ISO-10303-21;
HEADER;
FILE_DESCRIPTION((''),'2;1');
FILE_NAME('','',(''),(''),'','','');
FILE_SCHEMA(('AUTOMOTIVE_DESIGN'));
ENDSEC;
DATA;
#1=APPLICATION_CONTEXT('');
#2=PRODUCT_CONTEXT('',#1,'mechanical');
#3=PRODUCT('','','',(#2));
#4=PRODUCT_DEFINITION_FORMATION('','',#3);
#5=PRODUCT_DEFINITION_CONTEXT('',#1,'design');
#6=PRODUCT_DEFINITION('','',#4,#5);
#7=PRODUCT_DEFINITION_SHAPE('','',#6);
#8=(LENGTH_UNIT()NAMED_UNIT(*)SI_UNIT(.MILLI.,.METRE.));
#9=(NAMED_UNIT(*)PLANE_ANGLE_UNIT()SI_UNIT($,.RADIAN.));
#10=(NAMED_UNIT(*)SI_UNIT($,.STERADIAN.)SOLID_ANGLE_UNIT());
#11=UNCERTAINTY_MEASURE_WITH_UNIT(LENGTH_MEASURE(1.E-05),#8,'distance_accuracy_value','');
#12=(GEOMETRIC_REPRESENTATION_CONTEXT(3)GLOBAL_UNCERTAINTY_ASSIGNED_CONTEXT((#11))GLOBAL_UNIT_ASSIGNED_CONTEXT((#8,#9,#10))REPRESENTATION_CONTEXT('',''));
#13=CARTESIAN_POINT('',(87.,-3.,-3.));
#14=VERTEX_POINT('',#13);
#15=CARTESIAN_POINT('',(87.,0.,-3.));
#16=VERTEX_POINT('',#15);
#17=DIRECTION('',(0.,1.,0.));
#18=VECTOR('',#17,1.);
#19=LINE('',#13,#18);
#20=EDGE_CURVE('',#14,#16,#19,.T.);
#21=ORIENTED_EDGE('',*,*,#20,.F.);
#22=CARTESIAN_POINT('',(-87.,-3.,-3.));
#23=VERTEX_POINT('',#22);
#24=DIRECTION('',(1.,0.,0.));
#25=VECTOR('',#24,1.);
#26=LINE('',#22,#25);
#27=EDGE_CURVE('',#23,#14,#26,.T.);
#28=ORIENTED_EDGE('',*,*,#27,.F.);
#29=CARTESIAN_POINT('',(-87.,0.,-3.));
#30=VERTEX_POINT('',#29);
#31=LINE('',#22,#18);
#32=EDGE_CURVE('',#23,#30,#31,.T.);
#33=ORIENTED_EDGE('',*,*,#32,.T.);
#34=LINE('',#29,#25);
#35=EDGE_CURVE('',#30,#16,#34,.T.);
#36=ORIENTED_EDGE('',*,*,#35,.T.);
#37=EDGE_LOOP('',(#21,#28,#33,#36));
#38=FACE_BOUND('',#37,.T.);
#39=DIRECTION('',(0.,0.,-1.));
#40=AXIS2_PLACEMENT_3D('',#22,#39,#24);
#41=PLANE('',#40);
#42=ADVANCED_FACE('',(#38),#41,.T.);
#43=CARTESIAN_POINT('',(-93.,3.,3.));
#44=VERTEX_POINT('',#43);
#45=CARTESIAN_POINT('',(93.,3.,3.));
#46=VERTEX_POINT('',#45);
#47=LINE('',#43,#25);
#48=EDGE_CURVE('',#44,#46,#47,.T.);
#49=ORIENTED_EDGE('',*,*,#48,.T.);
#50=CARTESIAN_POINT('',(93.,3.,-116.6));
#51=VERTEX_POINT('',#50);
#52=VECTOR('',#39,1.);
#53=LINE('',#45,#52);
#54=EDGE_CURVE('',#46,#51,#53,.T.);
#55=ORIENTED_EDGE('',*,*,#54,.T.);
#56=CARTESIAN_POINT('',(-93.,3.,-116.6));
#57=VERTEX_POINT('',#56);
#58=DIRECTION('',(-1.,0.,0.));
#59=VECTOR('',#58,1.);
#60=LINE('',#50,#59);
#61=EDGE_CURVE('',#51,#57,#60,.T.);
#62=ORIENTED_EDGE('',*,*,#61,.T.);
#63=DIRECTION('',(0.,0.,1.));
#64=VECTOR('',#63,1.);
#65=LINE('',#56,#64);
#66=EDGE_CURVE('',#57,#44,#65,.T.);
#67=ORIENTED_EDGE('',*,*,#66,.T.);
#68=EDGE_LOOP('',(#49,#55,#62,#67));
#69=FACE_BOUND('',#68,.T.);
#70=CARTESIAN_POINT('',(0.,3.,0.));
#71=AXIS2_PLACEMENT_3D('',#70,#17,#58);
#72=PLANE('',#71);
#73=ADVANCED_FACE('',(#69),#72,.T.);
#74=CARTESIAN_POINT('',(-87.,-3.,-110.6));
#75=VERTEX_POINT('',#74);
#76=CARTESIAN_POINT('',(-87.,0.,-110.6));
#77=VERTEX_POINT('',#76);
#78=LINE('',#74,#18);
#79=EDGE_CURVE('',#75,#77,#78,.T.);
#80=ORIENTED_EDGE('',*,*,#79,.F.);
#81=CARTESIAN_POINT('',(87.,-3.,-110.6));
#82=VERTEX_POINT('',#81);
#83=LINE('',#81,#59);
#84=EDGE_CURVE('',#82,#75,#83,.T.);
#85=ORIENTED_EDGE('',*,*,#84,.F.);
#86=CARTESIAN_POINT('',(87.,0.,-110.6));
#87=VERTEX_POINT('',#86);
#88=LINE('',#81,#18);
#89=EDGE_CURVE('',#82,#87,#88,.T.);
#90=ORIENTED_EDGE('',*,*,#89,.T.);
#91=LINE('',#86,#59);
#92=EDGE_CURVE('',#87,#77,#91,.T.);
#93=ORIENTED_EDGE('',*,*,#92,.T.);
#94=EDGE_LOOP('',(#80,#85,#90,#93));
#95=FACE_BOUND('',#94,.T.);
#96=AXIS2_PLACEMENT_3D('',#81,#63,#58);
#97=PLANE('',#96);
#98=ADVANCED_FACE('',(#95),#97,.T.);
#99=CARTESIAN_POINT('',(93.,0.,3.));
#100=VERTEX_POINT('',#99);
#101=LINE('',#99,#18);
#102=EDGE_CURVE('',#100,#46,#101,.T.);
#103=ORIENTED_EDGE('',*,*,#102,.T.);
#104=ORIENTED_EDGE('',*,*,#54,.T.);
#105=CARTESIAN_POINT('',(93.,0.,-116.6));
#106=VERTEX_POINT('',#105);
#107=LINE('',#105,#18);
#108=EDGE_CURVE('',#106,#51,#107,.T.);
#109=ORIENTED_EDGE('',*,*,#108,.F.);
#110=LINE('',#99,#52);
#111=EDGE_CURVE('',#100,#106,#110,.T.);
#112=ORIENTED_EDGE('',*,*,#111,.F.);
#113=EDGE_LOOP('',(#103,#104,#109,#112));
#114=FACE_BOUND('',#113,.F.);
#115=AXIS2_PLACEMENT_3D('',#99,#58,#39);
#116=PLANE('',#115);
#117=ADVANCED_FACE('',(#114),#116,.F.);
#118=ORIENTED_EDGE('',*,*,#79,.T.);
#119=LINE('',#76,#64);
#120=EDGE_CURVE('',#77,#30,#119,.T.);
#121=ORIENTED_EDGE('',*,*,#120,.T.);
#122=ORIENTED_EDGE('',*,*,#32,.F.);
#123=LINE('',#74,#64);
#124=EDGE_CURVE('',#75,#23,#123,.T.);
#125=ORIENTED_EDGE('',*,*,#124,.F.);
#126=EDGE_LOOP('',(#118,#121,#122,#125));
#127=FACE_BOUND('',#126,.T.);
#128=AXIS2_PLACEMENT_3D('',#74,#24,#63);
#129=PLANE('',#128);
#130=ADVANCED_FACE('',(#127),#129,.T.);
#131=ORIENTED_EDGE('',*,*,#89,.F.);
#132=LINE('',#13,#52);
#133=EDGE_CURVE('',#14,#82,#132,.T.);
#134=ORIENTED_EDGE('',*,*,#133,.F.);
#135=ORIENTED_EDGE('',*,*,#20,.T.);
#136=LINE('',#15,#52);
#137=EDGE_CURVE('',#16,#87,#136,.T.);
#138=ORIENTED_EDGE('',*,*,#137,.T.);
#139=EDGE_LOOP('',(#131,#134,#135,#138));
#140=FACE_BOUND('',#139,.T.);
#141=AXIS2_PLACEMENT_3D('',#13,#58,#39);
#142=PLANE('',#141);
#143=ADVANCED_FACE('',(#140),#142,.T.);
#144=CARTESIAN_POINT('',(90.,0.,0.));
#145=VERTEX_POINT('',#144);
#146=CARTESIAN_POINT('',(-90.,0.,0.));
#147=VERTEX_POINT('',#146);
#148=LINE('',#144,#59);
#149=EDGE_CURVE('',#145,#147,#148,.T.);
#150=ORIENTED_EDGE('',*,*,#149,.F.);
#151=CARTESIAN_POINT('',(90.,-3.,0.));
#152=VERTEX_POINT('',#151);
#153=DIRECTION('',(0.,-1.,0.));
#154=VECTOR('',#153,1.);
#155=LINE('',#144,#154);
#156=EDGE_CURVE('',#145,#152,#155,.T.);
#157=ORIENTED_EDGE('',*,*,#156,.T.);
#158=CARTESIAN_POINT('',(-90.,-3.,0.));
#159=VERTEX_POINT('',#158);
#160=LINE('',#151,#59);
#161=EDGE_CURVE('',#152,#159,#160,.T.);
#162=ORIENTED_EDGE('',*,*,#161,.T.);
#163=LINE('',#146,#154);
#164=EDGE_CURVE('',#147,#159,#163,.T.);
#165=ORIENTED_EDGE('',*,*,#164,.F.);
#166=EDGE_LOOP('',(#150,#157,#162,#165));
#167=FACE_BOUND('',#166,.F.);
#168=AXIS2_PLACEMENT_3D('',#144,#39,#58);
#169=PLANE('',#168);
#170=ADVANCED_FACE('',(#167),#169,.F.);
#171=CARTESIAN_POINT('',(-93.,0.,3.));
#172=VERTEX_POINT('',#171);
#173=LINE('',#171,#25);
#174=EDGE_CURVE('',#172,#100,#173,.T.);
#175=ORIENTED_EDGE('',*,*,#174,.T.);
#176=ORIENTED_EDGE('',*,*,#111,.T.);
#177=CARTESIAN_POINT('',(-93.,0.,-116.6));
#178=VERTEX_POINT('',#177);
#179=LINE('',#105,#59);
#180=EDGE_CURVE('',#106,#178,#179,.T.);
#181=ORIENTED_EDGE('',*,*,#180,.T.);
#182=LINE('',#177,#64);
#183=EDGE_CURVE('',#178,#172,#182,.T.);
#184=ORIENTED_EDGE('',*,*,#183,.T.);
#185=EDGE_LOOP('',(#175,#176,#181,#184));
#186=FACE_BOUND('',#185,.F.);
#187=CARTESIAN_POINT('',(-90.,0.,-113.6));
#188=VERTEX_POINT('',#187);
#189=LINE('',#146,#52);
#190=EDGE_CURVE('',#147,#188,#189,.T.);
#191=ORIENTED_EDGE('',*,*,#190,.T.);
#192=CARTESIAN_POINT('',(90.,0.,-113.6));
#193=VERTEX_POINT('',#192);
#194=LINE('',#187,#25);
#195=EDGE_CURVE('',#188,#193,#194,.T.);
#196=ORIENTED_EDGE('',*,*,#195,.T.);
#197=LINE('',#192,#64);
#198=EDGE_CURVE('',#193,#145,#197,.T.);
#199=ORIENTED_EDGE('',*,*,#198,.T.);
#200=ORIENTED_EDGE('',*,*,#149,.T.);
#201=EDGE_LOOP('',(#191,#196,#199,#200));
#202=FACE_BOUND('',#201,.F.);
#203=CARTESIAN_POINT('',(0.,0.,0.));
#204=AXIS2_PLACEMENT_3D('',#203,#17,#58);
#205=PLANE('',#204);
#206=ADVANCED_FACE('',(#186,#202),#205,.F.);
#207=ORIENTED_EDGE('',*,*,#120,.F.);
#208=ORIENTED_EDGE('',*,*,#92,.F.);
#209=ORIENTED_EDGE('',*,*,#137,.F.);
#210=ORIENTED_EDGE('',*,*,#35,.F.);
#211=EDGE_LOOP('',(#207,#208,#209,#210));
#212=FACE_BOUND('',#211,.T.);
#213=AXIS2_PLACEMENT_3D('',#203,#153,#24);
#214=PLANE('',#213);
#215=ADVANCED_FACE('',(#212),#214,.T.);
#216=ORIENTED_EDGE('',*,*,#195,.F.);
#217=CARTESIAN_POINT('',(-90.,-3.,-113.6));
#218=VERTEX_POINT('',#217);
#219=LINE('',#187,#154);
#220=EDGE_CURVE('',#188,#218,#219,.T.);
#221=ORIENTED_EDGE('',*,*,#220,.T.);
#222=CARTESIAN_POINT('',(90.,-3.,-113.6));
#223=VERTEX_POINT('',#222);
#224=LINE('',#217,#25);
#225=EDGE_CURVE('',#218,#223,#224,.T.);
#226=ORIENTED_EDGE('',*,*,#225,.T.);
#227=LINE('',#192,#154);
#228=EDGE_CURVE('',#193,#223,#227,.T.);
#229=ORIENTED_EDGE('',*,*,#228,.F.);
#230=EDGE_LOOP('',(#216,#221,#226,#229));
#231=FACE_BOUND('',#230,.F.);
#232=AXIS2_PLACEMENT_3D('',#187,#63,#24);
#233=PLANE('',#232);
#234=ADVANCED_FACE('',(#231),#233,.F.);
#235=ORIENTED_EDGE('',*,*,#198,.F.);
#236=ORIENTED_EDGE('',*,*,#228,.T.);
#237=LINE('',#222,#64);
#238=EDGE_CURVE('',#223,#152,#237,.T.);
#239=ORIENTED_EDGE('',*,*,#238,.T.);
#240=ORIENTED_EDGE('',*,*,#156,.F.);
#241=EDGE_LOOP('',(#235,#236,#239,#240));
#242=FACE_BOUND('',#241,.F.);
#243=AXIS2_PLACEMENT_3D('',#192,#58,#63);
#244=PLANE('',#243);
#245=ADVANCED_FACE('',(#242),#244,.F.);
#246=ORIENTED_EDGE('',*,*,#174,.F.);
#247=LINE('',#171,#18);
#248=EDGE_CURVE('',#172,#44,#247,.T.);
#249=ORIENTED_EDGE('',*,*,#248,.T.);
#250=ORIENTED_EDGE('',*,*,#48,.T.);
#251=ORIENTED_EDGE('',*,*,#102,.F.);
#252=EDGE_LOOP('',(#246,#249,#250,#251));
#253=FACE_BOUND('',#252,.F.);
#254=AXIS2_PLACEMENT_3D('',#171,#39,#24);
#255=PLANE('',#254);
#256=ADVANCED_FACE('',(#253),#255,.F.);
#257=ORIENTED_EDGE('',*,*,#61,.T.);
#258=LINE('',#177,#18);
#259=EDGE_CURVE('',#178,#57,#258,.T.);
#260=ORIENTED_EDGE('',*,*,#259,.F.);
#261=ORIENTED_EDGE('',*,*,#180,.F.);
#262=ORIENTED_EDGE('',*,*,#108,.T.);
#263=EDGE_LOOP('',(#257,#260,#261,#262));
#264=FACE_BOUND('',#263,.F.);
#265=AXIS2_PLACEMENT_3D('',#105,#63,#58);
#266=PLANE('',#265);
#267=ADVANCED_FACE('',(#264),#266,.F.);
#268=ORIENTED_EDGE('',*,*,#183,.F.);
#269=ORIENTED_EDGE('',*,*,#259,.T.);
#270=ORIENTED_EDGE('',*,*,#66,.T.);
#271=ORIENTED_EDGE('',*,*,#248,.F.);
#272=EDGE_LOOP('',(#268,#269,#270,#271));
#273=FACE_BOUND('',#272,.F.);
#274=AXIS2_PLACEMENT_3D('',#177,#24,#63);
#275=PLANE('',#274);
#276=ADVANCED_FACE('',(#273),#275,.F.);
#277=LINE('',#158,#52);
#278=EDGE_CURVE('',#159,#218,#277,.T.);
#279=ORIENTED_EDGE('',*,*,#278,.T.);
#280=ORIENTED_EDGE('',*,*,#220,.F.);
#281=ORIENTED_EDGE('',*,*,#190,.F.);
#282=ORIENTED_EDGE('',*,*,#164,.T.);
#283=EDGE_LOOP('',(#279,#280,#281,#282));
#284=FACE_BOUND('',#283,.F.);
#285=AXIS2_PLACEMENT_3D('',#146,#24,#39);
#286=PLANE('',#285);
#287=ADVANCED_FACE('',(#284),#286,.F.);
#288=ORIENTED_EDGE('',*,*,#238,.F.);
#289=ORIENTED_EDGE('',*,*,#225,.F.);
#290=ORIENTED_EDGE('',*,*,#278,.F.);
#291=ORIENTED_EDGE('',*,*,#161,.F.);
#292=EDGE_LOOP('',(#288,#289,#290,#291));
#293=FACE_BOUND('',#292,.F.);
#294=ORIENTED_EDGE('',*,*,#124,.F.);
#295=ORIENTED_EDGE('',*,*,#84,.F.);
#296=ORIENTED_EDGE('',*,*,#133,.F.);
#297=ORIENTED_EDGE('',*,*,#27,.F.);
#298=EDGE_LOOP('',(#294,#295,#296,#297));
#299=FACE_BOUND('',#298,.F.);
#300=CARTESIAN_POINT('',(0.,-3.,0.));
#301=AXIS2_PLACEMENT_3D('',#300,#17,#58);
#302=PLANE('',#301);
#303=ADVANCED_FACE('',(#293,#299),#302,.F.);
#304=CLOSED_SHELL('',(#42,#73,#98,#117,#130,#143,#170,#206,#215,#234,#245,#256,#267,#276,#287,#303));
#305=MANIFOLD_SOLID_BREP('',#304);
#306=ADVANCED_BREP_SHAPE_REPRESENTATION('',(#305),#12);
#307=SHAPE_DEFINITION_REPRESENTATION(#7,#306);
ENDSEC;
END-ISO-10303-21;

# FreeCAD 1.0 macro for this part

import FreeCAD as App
import Part
import Sketcher

V = App.Vector


def add_polygon(sketch, points):
    """Adds a closed chain of lines whose ends are joined by coincident constraints."""
    first, n = sketch.GeometryCount, len(points)
    for a, b in zip(points, points[1:] + points[:1]):
        sketch.addGeometry(Part.LineSegment(App.Vector(*a, 0), App.Vector(*b, 0)), False)
    for i in range(n):
        sketch.addConstraint(Sketcher.Constraint("Coincident", first + i, 2, first + (i + 1) % n, 1))

doc = App.newDocument("Part")
body = doc.addObject("PartDesign::Body", "Body")

sketch1 = body.newObject("Sketcher::SketchObject", "Sketch")
sketch1.AttachmentSupport = (doc.getObject("XZ_Plane"), [""])
sketch1.MapMode = "FlatFace"
add_polygon(sketch1, [(93, 3), (93, -117), (-93, -117), (-93, 3)])
sketch1.addConstraint([
    Sketcher.Constraint("Vertical", 0),
    Sketcher.Constraint("Horizontal", 1),
    Sketcher.Constraint("Vertical", 2),
    Sketcher.Constraint("Horizontal", 3),
    Sketcher.Constraint("DistanceY", -1, 1, 2, 2, 3.0),
    Sketcher.Constraint("DistanceX", 1, 2, 1, 1, 186.0),
    Sketcher.Constraint("DistanceY", 0, 2, 0, 1, 119.6),
    Sketcher.Constraint("DistanceX", -1, 1, 0, 2, 93.0),
])
pad1 = body.newObject("PartDesign::Pad", "Pad")
pad1.Profile = sketch1
pad1.Length = 3
pad1.Reversed = True

sketch2 = body.newObject("Sketcher::SketchObject", "Sketch001")
sketch2.AttachmentSupport = (doc.getObject("XZ_Plane"), [""])
sketch2.MapMode = "FlatFace"
add_polygon(sketch2, [(90, -114), (-90, -114), (-90, 0), (90, 0)])
sketch2.addConstraint([
    Sketcher.Constraint("Horizontal", 0),
    Sketcher.Constraint("Vertical", 1),
    Sketcher.Constraint("Horizontal", 2),
    Sketcher.Constraint("Vertical", 3),
    Sketcher.Constraint("Symmetric", 1, 2, 2, 2, -1, 1),
    Sketcher.Constraint("DistanceX", 0, 2, 0, 1, 180.0),
    Sketcher.Constraint("DistanceY", 1, 1, 1, 2, 113.6),
])
pad2 = body.newObject("PartDesign::Pad", "Pad001")
pad2.Profile = sketch2
pad2.Length = 3

sketch3 = body.newObject("Sketcher::SketchObject", "Sketch002")
sketch3.AttachmentSupport = (doc.getObject("XZ_Plane"), [""])
sketch3.MapMode = "FlatFace"
sketch3.AttachmentOffset = App.Placement(V(0, 0, 3), App.Rotation())
add_polygon(sketch3, [(87, -3), (-87, -3), (-87, -111), (87, -111)])
sketch3.addConstraint([
    Sketcher.Constraint("Horizontal", 0),
    Sketcher.Constraint("Vertical", 1),
    Sketcher.Constraint("Horizontal", 2),
    Sketcher.Constraint("Vertical", 3),
    Sketcher.Constraint("DistanceY", 0, 2, -1, 1, 3.0),
    Sketcher.Constraint("DistanceX", 0, 2, 0, 1, 174.0),
    Sketcher.Constraint("DistanceY", 1, 2, 1, 1, 107.6),
    Sketcher.Constraint("DistanceX", 0, 2, -1, 1, 87.0),
])
pocket1 = body.newObject("PartDesign::Pocket", "Pocket")
pocket1.Profile = sketch3
pocket1.Length = 3

doc.recompute()
